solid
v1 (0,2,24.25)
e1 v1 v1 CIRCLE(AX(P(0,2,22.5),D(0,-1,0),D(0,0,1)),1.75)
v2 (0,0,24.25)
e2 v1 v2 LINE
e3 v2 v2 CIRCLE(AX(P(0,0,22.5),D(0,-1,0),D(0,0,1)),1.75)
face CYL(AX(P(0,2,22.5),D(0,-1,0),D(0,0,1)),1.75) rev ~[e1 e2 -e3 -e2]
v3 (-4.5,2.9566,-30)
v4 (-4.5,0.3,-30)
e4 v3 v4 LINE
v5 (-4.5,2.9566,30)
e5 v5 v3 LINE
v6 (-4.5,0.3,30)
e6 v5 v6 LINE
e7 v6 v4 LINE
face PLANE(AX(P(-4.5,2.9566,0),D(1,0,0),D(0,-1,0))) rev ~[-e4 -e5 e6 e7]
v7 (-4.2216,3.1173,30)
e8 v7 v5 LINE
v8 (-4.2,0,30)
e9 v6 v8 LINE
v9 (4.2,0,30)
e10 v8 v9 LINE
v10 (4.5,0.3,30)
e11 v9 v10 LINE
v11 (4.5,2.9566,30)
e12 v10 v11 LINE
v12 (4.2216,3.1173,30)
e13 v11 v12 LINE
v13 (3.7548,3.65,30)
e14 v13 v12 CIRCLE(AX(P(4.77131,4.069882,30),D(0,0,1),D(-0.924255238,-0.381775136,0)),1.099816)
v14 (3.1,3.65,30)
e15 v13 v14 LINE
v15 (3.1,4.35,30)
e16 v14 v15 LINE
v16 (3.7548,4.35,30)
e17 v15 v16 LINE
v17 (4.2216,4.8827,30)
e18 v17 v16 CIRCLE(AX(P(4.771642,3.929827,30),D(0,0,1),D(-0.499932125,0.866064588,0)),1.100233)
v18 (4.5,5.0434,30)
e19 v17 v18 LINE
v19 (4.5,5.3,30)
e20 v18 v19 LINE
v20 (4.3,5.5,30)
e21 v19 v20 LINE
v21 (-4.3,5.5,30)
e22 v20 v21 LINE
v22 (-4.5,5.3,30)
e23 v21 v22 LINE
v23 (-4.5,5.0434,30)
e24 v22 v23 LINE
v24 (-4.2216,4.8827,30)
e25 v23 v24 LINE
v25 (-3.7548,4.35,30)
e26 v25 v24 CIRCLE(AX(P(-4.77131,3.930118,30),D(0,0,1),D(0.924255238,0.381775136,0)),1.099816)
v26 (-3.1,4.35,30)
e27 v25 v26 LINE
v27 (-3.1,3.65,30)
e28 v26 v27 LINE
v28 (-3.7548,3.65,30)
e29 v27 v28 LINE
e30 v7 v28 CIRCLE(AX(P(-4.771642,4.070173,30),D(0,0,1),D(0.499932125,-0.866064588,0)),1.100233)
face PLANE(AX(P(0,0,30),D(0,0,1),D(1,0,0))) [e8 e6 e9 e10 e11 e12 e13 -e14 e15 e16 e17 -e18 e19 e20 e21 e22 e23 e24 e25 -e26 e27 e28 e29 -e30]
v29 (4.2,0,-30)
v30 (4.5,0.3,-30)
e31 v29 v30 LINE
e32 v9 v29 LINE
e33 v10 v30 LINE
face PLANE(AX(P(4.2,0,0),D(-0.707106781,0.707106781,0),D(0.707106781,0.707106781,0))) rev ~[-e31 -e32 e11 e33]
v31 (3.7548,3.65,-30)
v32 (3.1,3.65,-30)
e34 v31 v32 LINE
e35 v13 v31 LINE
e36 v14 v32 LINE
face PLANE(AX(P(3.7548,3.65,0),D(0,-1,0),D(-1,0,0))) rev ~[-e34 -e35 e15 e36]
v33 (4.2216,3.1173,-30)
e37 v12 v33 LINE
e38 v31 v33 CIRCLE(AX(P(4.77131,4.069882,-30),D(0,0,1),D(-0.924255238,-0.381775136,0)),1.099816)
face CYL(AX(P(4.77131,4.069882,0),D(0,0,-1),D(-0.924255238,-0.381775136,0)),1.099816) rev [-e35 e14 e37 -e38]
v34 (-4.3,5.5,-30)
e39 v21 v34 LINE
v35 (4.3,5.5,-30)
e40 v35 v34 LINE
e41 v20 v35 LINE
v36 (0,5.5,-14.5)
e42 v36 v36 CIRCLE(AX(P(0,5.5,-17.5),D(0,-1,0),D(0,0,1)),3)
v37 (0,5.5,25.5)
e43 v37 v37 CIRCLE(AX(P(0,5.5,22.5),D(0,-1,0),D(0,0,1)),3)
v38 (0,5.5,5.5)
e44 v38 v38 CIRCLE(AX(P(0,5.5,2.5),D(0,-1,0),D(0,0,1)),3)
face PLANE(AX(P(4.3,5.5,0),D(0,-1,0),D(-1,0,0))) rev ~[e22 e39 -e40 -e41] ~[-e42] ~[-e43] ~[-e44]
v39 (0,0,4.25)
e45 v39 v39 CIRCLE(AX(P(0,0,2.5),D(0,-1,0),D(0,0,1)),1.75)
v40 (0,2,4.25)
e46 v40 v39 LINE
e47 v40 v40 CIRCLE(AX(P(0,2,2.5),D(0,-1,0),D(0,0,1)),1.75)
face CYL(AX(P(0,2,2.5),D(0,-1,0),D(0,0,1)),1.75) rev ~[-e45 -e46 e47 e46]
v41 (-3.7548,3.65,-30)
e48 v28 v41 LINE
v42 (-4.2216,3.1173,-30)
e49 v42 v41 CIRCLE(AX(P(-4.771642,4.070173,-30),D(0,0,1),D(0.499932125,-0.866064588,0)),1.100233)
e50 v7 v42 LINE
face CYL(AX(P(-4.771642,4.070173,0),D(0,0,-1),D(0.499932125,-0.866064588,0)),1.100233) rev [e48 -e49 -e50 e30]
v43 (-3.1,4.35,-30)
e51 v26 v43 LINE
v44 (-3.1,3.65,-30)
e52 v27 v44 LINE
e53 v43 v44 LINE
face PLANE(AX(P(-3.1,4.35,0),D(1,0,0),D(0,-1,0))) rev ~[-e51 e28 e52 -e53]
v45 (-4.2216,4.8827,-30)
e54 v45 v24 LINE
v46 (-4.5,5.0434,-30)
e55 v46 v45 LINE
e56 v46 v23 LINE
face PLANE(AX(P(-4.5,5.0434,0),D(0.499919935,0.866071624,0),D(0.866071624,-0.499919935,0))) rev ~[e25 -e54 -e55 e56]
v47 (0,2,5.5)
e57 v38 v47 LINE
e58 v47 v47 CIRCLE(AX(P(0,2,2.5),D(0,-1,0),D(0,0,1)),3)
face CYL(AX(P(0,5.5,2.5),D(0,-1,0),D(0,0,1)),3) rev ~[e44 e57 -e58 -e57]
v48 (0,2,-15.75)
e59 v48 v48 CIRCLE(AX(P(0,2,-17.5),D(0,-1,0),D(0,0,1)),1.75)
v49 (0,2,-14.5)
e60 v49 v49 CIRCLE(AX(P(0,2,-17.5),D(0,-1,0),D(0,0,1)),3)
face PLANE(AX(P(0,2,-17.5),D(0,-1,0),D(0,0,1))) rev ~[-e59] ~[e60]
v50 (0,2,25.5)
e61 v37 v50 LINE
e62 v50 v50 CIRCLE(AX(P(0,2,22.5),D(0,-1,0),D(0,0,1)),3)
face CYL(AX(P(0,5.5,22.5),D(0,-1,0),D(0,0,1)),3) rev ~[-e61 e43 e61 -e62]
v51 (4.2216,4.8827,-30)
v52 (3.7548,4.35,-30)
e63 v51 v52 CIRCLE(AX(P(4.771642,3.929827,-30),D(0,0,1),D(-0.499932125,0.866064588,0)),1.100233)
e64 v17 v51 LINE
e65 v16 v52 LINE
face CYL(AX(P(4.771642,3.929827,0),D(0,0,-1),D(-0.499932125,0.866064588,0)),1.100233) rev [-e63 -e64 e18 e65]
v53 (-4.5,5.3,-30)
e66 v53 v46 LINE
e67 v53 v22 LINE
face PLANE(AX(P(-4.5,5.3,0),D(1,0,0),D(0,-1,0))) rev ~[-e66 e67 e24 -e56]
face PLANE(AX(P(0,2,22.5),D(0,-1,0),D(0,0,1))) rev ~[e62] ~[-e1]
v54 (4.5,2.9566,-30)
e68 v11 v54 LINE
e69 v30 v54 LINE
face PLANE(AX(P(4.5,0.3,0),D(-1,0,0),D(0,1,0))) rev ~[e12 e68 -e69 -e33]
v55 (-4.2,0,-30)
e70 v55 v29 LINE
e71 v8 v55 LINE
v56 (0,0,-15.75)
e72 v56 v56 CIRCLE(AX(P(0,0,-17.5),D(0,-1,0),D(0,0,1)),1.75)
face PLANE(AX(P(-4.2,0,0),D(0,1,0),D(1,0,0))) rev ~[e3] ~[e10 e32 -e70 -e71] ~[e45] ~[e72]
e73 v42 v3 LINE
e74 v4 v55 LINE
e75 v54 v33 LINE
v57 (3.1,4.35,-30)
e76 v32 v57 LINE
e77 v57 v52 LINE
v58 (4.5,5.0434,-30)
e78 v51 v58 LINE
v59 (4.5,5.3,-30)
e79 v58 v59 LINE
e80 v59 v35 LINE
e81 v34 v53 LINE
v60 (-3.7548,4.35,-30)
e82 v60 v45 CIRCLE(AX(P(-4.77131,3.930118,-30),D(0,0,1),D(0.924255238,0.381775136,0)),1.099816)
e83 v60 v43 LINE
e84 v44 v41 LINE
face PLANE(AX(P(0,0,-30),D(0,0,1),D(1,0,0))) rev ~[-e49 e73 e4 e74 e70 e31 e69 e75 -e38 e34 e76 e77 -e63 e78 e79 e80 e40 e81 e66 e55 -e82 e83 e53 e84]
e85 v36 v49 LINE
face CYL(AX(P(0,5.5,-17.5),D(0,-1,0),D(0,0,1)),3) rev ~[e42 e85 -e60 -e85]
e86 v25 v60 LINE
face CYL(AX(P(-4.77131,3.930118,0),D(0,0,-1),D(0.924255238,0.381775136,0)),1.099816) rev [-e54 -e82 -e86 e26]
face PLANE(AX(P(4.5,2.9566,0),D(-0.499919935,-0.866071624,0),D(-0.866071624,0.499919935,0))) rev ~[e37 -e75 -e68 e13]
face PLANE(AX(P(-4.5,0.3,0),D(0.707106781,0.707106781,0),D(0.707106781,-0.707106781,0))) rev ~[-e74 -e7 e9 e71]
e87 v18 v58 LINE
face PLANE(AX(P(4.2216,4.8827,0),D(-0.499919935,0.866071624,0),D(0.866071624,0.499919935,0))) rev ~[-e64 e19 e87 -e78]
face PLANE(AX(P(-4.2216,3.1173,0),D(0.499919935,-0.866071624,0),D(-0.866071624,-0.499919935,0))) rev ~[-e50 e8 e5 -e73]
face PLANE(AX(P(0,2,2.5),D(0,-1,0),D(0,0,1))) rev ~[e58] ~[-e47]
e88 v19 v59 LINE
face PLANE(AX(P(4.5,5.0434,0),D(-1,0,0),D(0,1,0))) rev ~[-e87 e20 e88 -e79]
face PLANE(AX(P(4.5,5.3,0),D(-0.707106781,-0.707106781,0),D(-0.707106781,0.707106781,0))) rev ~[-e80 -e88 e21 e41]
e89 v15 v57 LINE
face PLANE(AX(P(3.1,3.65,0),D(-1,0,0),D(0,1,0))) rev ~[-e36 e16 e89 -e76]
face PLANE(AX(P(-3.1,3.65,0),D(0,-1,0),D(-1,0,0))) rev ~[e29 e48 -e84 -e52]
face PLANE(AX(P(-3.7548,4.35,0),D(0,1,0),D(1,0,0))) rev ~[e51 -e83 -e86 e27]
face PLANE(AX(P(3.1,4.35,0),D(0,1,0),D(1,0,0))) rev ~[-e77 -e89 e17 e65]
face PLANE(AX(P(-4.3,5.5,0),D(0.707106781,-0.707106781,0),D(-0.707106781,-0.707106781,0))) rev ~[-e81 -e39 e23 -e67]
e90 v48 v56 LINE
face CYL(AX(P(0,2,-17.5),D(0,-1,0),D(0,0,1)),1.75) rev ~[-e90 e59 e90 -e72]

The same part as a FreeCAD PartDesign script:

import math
import FreeCAD as App
import Part
import Sketcher
Q = App.Units.Quantity

doc = App.newDocument("Part")
body = doc.addObject("PartDesign::Body", "Body")

# Sketch on XY plane
sketch1 = body.newObject("Sketcher::SketchObject", "Sketch")
sketch1.AttachmentSupport = (doc.getObject("XY_Plane"), [""])
sketch1.MapMode = "FlatFace"
sketch1.addGeometry(Part.LineSegment(App.Vector(-4.3, 5.5, 0), App.Vector(-4.5, 5.3, 0)), False)
sketch1.addGeometry(Part.LineSegment(App.Vector(-4.5, 5.3, 0), App.Vector(-4.5, 5.04, 0)), False)
sketch1.addGeometry(Part.LineSegment(App.Vector(-4.5, 5.04, 0), App.Vector(-4.22, 4.88, 0)), False)
sketch1.addGeometry(Part.ArcOfCircle(Part.Circle(App.Vector(-4.77, 3.93, 0), App.Vector(0, 0, 1), 1.1), math.radians(22), math.radians(60)), False)
sketch1.addGeometry(Part.LineSegment(App.Vector(-3.75, 4.35, 0), App.Vector(-3.1, 4.35, 0)), False)
sketch1.addGeometry(Part.LineSegment(App.Vector(-3.1, 4.35, 0), App.Vector(-3.1, 3.65, 0)), False)
sketch1.addGeometry(Part.LineSegment(App.Vector(-3.1, 3.65, 0), App.Vector(-3.75, 3.65, 0)), False)
sketch1.addGeometry(Part.ArcOfCircle(Part.Circle(App.Vector(-4.77, 4.07, 0), App.Vector(0, 0, 1), 1.1), math.radians(-60), math.radians(-22)), False)
sketch1.addGeometry(Part.LineSegment(App.Vector(-4.22, 3.12, 0), App.Vector(-4.5, 2.96, 0)), False)
sketch1.addGeometry(Part.LineSegment(App.Vector(-4.5, 2.96, 0), App.Vector(-4.5, 0.3, 0)), False)
sketch1.addGeometry(Part.LineSegment(App.Vector(-4.5, 0.3, 0), App.Vector(-4.2, 0, 0)), False)
sketch1.addGeometry(Part.LineSegment(App.Vector(-4.2, 0, 0), App.Vector(4.2, 0, 0)), False)
sketch1.addGeometry(Part.LineSegment(App.Vector(4.2, 0, 0), App.Vector(4.5, 0.3, 0)), False)
sketch1.addGeometry(Part.LineSegment(App.Vector(4.5, 0.3, 0), App.Vector(4.5, 2.96, 0)), False)
sketch1.addGeometry(Part.LineSegment(App.Vector(4.5, 2.96, 0), App.Vector(4.22, 3.12, 0)), False)
sketch1.addGeometry(Part.ArcOfCircle(Part.Circle(App.Vector(4.77, 4.07, 0), App.Vector(0, 0, 1), 1.1), math.radians(-158), math.radians(-120)), False)
sketch1.addGeometry(Part.LineSegment(App.Vector(3.75, 3.65, 0), App.Vector(3.1, 3.65, 0)), False)
sketch1.addGeometry(Part.LineSegment(App.Vector(3.1, 3.65, 0), App.Vector(3.1, 4.35, 0)), False)
sketch1.addGeometry(Part.LineSegment(App.Vector(3.1, 4.35, 0), App.Vector(3.75, 4.35, 0)), False)
sketch1.addGeometry(Part.ArcOfCircle(Part.Circle(App.Vector(4.77, 3.93, 0), App.Vector(0, 0, 1), 1.1), math.radians(120), math.radians(158)), False)
sketch1.addGeometry(Part.LineSegment(App.Vector(4.22, 4.88, 0), App.Vector(4.5, 5.04, 0)), False)
sketch1.addGeometry(Part.LineSegment(App.Vector(4.5, 5.04, 0), App.Vector(4.5, 5.3, 0)), False)
sketch1.addGeometry(Part.LineSegment(App.Vector(4.5, 5.3, 0), App.Vector(4.3, 5.5, 0)), False)
sketch1.addGeometry(Part.LineSegment(App.Vector(4.3, 5.5, 0), App.Vector(-4.3, 5.5, 0)), False)
sketch1.addConstraint(Sketcher.Constraint("Coincident", 0, 2, 1, 1))
sketch1.addConstraint(Sketcher.Constraint("Coincident", 1, 2, 2, 1))
sketch1.addConstraint(Sketcher.Constraint("Tangent", 2, 2, 3, 2))
sketch1.addConstraint(Sketcher.Constraint("Coincident", 3, 1, 4, 1))
sketch1.addConstraint(Sketcher.Constraint("Coincident", 4, 2, 5, 1))
sketch1.addConstraint(Sketcher.Constraint("Coincident", 5, 2, 6, 1))
sketch1.addConstraint(Sketcher.Constraint("Coincident", 6, 2, 7, 2))
sketch1.addConstraint(Sketcher.Constraint("Tangent", 7, 1, 8, 1))
sketch1.addConstraint(Sketcher.Constraint("Coincident", 8, 2, 9, 1))
sketch1.addConstraint(Sketcher.Constraint("Coincident", 9, 2, 10, 1))
sketch1.addConstraint(Sketcher.Constraint("Coincident", 10, 2, 11, 1))
sketch1.addConstraint(Sketcher.Constraint("Coincident", 11, 2, 12, 1))
sketch1.addConstraint(Sketcher.Constraint("Coincident", 12, 2, 13, 1))
sketch1.addConstraint(Sketcher.Constraint("Coincident", 13, 2, 14, 1))
sketch1.addConstraint(Sketcher.Constraint("Tangent", 14, 2, 15, 2))
sketch1.addConstraint(Sketcher.Constraint("Coincident", 15, 1, 16, 1))
sketch1.addConstraint(Sketcher.Constraint("Coincident", 16, 2, 17, 1))
sketch1.addConstraint(Sketcher.Constraint("Coincident", 17, 2, 18, 1))
sketch1.addConstraint(Sketcher.Constraint("Coincident", 18, 2, 19, 2))
sketch1.addConstraint(Sketcher.Constraint("Tangent", 19, 1, 20, 1))
sketch1.addConstraint(Sketcher.Constraint("Coincident", 20, 2, 21, 1))
sketch1.addConstraint(Sketcher.Constraint("Coincident", 21, 2, 22, 1))
sketch1.addConstraint(Sketcher.Constraint("Coincident", 22, 2, 23, 1))
sketch1.addConstraint(Sketcher.Constraint("Coincident", 23, 2, 0, 1))
sketch1.addConstraint(Sketcher.Constraint("Vertical", 1))
sketch1.addConstraint(Sketcher.Constraint("Horizontal", 4))
sketch1.addConstraint(Sketcher.Constraint("Vertical", 5))
sketch1.addConstraint(Sketcher.Constraint("Horizontal", 6))
sketch1.addConstraint(Sketcher.Constraint("Vertical", 9))
sketch1.addConstraint(Sketcher.Constraint("Horizontal", 11))
sketch1.addConstraint(Sketcher.Constraint("Vertical", 13))
sketch1.addConstraint(Sketcher.Constraint("Horizontal", 16))
sketch1.addConstraint(Sketcher.Constraint("Vertical", 17))
sketch1.addConstraint(Sketcher.Constraint("Horizontal", 18))
sketch1.addConstraint(Sketcher.Constraint("Vertical", 21))
sketch1.addConstraint(Sketcher.Constraint("Horizontal", 23))
sketch1.addConstraint(Sketcher.Constraint("Equal", 3, 7))
sketch1.addConstraint(Sketcher.Constraint("Equal", 7, 15))
sketch1.addConstraint(Sketcher.Constraint("Equal", 15, 19))
sketch1.addConstraint(Sketcher.Constraint("Symmetric", 10, 2, 11, 2, -1, 1))
sketch1.addConstraint(Sketcher.Constraint("Symmetric", 7, 3, 15, 3, -2))
sketch1.addConstraint(Sketcher.Constraint("Symmetric", 3, 3, 19, 3, -2))
sketch1.addConstraint(Sketcher.Constraint("Symmetric", 9, 2, 12, 2, -2))
sketch1.addConstraint(Sketcher.Constraint("Symmetric", 5, 2, 16, 2, -2))
sketch1.addConstraint(Sketcher.Constraint("Symmetric", 1, 2, 20, 2, -2))
sketch1.addConstraint(Sketcher.Constraint("Perpendicular", 0, 10))
sketch1.addConstraint(Sketcher.Constraint("Perpendicular", 10, 12))
sketch1.addConstraint(Sketcher.Constraint("Parallel", 2, 14))
sketch1.addConstraint(Sketcher.Constraint("Parallel", 8, 20))
sketch1.addConstraint(Sketcher.Constraint("Perpendicular", 12, 22))
sketch1.addConstraint(Sketcher.Constraint("Horizontal", 4, 2, 17, 2))
sketch1.addConstraint(Sketcher.Constraint("Horizontal", 0, 2, 21, 2))
sketch1.addConstraint(Sketcher.Constraint("Vertical", 3, 3, 7, 3))
sketch1.addConstraint(Sketcher.Constraint("Vertical", 3, 1, 6, 2))
sketch1.addConstraint(Sketcher.Constraint("Vertical", 1, 2, 8, 2))
sketch1.addConstraint(Sketcher.Constraint("Radius", 3, Q("1.1 mm")))
sketch1.addConstraint(Sketcher.Constraint("DistanceX", 11, 1, 11, 2, Q("8.4 mm")))
sketch1.addConstraint(Sketcher.Constraint("DistanceX", 23, 2, 23, 1, Q("8.6 mm")))
sketch1.addConstraint(Sketcher.Constraint("DistanceY", 5, 2, 5, 1, Q("0.7 mm")))
sketch1.addConstraint(Sketcher.Constraint("DistanceX", 0, 2, -1, 1, Q("4.5 mm")))
sketch1.addConstraint(Sketcher.Constraint("DistanceY", -1, 1, 0, 2, Q("5.3 mm")))
sketch1.addConstraint(Sketcher.Constraint("DistanceX", 4, 2, -1, 1, Q("3.1 mm")))
sketch1.addConstraint(Sketcher.Constraint("DistanceY", -1, 1, 3, 3, Q("3.93 mm")))
sketch1.addConstraint(Sketcher.Constraint("DistanceY", -1, 1, 7, 3, Q("4.07 mm")))
sketch1.addConstraint(Sketcher.Constraint("DistanceX", 7, 3, 2, 2, Q("0.55 mm")))
sketch1.addConstraint(Sketcher.Constraint("DistanceX", 4, 1, 4, 2, Q("0.6548 mm")))
pad1 = body.newObject("PartDesign::Pad", "Pad")
pad1.Profile = sketch1
pad1.Length = 60
pad1.Midplane = True

# Sketch on XZ plane
sketch2 = body.newObject("Sketcher::SketchObject", "Sketch001")
sketch2.AttachmentSupport = (doc.getObject("XZ_Plane"), [""])
sketch2.MapMode = "FlatFace"
sketch2.AttachmentOffset = App.Placement(App.Vector(0, 0, -5.5), App.Rotation())
sketch2.addGeometry(Part.Circle(App.Vector(0, -417.5, 0), App.Vector(0, 0, 1), 1.8), False)
sketch2.addConstraint(Sketcher.Constraint("PointOnObject", 0, 3, -2))
sketch2.addConstraint(Sketcher.Constraint("Diameter", 0, Q("3.5 mm")))
sketch2.addConstraint(Sketcher.Constraint("DistanceY", 0, 3, -1, 1, Q("417.5 mm")))
doc.recompute()
hole = body.newObject("PartDesign::Hole", "Hole")
hole.Profile = sketch2
hole.ThreadType = "None"
hole.Diameter = 3.5
hole.DepthType = "Dimension"
hole.Depth = 5.5
hole.DrillPoint = "Flat"
hole.HoleCutType = "Counterbore"
hole.HoleCutDiameter = 6
hole.HoleCutDepth = 3.5
hole.Reversed = True
doc.recompute()

linearpattern = body.newObject("PartDesign::LinearPattern", "LinearPattern")
linearpattern.Originals = [hole]
linearpattern.Direction = (doc.getObject("Z_Axis"), [""])
linearpattern.Mode = "offset"
linearpattern.Offset = 20
linearpattern.Occurrences = 23
body.Tip = linearpattern

doc.recompute()
